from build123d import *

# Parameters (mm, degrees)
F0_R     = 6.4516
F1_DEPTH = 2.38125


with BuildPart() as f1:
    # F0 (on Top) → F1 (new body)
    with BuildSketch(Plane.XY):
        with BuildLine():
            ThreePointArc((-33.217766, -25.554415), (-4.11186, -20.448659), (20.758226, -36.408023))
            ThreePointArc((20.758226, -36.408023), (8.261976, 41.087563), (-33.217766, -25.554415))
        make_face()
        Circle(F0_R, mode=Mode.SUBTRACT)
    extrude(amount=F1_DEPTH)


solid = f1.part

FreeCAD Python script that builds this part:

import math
import FreeCAD as App
import Part
import Sketcher
Q = App.Units.Quantity

doc = App.newDocument("Part")
body = doc.addObject("PartDesign::Body", "Body")

sketch1 = doc.addObject("Sketcher::SketchObject", "Sketch")
body.addObject(sketch1)
sketch1.AttachmentSupport = (doc.XY_Plane, [""])
sketch1.MapMode = "FlatFace"
sketch1.addGeometry([
    Part.ArcOfCircle(Part.Circle(App.Vector(-12, -60, 0), App.Vector(0, 0, 1), 41), math.radians(36), math.radians(121)),
    Part.ArcOfCircle(Part.Circle(App.Vector(0, 0, 0), App.Vector(0, 0, 1), 42), math.radians(-60), math.radians(218)),
    Part.Circle(App.Vector(0, 0, 0), App.Vector(0, 0, 1), 6),
], False)
sketch1.addConstraint([
    Sketcher.Constraint("Coincident", 0, 1, 1, 1),
    Sketcher.Constraint("Coincident", 1, 2, 0, 2),
    Sketcher.Constraint("Coincident", 1, 3, -1, 1),
    Sketcher.Constraint("Coincident", 2, 3, -1, 1),
    Sketcher.Constraint("Radius", 0, Q("1.6 in")),
    Sketcher.Constraint("Radius", 1, Q("1.65 in")),
    Sketcher.Constraint("Diameter", 2, Q("0.508 in")),
    Sketcher.Constraint("DistanceX", 0, 3, 0, 1, Q("32.881699 mm")),
    Sketcher.Constraint("DistanceY", 0, 3, 1, 2, Q("34.73673 mm")),
])
pad1 = doc.addObject("PartDesign::Pad", "Pad")
body.addObject(pad1)
pad1.Profile = sketch1
pad1.Length = Q("0.09375 in")

doc.recompute()
